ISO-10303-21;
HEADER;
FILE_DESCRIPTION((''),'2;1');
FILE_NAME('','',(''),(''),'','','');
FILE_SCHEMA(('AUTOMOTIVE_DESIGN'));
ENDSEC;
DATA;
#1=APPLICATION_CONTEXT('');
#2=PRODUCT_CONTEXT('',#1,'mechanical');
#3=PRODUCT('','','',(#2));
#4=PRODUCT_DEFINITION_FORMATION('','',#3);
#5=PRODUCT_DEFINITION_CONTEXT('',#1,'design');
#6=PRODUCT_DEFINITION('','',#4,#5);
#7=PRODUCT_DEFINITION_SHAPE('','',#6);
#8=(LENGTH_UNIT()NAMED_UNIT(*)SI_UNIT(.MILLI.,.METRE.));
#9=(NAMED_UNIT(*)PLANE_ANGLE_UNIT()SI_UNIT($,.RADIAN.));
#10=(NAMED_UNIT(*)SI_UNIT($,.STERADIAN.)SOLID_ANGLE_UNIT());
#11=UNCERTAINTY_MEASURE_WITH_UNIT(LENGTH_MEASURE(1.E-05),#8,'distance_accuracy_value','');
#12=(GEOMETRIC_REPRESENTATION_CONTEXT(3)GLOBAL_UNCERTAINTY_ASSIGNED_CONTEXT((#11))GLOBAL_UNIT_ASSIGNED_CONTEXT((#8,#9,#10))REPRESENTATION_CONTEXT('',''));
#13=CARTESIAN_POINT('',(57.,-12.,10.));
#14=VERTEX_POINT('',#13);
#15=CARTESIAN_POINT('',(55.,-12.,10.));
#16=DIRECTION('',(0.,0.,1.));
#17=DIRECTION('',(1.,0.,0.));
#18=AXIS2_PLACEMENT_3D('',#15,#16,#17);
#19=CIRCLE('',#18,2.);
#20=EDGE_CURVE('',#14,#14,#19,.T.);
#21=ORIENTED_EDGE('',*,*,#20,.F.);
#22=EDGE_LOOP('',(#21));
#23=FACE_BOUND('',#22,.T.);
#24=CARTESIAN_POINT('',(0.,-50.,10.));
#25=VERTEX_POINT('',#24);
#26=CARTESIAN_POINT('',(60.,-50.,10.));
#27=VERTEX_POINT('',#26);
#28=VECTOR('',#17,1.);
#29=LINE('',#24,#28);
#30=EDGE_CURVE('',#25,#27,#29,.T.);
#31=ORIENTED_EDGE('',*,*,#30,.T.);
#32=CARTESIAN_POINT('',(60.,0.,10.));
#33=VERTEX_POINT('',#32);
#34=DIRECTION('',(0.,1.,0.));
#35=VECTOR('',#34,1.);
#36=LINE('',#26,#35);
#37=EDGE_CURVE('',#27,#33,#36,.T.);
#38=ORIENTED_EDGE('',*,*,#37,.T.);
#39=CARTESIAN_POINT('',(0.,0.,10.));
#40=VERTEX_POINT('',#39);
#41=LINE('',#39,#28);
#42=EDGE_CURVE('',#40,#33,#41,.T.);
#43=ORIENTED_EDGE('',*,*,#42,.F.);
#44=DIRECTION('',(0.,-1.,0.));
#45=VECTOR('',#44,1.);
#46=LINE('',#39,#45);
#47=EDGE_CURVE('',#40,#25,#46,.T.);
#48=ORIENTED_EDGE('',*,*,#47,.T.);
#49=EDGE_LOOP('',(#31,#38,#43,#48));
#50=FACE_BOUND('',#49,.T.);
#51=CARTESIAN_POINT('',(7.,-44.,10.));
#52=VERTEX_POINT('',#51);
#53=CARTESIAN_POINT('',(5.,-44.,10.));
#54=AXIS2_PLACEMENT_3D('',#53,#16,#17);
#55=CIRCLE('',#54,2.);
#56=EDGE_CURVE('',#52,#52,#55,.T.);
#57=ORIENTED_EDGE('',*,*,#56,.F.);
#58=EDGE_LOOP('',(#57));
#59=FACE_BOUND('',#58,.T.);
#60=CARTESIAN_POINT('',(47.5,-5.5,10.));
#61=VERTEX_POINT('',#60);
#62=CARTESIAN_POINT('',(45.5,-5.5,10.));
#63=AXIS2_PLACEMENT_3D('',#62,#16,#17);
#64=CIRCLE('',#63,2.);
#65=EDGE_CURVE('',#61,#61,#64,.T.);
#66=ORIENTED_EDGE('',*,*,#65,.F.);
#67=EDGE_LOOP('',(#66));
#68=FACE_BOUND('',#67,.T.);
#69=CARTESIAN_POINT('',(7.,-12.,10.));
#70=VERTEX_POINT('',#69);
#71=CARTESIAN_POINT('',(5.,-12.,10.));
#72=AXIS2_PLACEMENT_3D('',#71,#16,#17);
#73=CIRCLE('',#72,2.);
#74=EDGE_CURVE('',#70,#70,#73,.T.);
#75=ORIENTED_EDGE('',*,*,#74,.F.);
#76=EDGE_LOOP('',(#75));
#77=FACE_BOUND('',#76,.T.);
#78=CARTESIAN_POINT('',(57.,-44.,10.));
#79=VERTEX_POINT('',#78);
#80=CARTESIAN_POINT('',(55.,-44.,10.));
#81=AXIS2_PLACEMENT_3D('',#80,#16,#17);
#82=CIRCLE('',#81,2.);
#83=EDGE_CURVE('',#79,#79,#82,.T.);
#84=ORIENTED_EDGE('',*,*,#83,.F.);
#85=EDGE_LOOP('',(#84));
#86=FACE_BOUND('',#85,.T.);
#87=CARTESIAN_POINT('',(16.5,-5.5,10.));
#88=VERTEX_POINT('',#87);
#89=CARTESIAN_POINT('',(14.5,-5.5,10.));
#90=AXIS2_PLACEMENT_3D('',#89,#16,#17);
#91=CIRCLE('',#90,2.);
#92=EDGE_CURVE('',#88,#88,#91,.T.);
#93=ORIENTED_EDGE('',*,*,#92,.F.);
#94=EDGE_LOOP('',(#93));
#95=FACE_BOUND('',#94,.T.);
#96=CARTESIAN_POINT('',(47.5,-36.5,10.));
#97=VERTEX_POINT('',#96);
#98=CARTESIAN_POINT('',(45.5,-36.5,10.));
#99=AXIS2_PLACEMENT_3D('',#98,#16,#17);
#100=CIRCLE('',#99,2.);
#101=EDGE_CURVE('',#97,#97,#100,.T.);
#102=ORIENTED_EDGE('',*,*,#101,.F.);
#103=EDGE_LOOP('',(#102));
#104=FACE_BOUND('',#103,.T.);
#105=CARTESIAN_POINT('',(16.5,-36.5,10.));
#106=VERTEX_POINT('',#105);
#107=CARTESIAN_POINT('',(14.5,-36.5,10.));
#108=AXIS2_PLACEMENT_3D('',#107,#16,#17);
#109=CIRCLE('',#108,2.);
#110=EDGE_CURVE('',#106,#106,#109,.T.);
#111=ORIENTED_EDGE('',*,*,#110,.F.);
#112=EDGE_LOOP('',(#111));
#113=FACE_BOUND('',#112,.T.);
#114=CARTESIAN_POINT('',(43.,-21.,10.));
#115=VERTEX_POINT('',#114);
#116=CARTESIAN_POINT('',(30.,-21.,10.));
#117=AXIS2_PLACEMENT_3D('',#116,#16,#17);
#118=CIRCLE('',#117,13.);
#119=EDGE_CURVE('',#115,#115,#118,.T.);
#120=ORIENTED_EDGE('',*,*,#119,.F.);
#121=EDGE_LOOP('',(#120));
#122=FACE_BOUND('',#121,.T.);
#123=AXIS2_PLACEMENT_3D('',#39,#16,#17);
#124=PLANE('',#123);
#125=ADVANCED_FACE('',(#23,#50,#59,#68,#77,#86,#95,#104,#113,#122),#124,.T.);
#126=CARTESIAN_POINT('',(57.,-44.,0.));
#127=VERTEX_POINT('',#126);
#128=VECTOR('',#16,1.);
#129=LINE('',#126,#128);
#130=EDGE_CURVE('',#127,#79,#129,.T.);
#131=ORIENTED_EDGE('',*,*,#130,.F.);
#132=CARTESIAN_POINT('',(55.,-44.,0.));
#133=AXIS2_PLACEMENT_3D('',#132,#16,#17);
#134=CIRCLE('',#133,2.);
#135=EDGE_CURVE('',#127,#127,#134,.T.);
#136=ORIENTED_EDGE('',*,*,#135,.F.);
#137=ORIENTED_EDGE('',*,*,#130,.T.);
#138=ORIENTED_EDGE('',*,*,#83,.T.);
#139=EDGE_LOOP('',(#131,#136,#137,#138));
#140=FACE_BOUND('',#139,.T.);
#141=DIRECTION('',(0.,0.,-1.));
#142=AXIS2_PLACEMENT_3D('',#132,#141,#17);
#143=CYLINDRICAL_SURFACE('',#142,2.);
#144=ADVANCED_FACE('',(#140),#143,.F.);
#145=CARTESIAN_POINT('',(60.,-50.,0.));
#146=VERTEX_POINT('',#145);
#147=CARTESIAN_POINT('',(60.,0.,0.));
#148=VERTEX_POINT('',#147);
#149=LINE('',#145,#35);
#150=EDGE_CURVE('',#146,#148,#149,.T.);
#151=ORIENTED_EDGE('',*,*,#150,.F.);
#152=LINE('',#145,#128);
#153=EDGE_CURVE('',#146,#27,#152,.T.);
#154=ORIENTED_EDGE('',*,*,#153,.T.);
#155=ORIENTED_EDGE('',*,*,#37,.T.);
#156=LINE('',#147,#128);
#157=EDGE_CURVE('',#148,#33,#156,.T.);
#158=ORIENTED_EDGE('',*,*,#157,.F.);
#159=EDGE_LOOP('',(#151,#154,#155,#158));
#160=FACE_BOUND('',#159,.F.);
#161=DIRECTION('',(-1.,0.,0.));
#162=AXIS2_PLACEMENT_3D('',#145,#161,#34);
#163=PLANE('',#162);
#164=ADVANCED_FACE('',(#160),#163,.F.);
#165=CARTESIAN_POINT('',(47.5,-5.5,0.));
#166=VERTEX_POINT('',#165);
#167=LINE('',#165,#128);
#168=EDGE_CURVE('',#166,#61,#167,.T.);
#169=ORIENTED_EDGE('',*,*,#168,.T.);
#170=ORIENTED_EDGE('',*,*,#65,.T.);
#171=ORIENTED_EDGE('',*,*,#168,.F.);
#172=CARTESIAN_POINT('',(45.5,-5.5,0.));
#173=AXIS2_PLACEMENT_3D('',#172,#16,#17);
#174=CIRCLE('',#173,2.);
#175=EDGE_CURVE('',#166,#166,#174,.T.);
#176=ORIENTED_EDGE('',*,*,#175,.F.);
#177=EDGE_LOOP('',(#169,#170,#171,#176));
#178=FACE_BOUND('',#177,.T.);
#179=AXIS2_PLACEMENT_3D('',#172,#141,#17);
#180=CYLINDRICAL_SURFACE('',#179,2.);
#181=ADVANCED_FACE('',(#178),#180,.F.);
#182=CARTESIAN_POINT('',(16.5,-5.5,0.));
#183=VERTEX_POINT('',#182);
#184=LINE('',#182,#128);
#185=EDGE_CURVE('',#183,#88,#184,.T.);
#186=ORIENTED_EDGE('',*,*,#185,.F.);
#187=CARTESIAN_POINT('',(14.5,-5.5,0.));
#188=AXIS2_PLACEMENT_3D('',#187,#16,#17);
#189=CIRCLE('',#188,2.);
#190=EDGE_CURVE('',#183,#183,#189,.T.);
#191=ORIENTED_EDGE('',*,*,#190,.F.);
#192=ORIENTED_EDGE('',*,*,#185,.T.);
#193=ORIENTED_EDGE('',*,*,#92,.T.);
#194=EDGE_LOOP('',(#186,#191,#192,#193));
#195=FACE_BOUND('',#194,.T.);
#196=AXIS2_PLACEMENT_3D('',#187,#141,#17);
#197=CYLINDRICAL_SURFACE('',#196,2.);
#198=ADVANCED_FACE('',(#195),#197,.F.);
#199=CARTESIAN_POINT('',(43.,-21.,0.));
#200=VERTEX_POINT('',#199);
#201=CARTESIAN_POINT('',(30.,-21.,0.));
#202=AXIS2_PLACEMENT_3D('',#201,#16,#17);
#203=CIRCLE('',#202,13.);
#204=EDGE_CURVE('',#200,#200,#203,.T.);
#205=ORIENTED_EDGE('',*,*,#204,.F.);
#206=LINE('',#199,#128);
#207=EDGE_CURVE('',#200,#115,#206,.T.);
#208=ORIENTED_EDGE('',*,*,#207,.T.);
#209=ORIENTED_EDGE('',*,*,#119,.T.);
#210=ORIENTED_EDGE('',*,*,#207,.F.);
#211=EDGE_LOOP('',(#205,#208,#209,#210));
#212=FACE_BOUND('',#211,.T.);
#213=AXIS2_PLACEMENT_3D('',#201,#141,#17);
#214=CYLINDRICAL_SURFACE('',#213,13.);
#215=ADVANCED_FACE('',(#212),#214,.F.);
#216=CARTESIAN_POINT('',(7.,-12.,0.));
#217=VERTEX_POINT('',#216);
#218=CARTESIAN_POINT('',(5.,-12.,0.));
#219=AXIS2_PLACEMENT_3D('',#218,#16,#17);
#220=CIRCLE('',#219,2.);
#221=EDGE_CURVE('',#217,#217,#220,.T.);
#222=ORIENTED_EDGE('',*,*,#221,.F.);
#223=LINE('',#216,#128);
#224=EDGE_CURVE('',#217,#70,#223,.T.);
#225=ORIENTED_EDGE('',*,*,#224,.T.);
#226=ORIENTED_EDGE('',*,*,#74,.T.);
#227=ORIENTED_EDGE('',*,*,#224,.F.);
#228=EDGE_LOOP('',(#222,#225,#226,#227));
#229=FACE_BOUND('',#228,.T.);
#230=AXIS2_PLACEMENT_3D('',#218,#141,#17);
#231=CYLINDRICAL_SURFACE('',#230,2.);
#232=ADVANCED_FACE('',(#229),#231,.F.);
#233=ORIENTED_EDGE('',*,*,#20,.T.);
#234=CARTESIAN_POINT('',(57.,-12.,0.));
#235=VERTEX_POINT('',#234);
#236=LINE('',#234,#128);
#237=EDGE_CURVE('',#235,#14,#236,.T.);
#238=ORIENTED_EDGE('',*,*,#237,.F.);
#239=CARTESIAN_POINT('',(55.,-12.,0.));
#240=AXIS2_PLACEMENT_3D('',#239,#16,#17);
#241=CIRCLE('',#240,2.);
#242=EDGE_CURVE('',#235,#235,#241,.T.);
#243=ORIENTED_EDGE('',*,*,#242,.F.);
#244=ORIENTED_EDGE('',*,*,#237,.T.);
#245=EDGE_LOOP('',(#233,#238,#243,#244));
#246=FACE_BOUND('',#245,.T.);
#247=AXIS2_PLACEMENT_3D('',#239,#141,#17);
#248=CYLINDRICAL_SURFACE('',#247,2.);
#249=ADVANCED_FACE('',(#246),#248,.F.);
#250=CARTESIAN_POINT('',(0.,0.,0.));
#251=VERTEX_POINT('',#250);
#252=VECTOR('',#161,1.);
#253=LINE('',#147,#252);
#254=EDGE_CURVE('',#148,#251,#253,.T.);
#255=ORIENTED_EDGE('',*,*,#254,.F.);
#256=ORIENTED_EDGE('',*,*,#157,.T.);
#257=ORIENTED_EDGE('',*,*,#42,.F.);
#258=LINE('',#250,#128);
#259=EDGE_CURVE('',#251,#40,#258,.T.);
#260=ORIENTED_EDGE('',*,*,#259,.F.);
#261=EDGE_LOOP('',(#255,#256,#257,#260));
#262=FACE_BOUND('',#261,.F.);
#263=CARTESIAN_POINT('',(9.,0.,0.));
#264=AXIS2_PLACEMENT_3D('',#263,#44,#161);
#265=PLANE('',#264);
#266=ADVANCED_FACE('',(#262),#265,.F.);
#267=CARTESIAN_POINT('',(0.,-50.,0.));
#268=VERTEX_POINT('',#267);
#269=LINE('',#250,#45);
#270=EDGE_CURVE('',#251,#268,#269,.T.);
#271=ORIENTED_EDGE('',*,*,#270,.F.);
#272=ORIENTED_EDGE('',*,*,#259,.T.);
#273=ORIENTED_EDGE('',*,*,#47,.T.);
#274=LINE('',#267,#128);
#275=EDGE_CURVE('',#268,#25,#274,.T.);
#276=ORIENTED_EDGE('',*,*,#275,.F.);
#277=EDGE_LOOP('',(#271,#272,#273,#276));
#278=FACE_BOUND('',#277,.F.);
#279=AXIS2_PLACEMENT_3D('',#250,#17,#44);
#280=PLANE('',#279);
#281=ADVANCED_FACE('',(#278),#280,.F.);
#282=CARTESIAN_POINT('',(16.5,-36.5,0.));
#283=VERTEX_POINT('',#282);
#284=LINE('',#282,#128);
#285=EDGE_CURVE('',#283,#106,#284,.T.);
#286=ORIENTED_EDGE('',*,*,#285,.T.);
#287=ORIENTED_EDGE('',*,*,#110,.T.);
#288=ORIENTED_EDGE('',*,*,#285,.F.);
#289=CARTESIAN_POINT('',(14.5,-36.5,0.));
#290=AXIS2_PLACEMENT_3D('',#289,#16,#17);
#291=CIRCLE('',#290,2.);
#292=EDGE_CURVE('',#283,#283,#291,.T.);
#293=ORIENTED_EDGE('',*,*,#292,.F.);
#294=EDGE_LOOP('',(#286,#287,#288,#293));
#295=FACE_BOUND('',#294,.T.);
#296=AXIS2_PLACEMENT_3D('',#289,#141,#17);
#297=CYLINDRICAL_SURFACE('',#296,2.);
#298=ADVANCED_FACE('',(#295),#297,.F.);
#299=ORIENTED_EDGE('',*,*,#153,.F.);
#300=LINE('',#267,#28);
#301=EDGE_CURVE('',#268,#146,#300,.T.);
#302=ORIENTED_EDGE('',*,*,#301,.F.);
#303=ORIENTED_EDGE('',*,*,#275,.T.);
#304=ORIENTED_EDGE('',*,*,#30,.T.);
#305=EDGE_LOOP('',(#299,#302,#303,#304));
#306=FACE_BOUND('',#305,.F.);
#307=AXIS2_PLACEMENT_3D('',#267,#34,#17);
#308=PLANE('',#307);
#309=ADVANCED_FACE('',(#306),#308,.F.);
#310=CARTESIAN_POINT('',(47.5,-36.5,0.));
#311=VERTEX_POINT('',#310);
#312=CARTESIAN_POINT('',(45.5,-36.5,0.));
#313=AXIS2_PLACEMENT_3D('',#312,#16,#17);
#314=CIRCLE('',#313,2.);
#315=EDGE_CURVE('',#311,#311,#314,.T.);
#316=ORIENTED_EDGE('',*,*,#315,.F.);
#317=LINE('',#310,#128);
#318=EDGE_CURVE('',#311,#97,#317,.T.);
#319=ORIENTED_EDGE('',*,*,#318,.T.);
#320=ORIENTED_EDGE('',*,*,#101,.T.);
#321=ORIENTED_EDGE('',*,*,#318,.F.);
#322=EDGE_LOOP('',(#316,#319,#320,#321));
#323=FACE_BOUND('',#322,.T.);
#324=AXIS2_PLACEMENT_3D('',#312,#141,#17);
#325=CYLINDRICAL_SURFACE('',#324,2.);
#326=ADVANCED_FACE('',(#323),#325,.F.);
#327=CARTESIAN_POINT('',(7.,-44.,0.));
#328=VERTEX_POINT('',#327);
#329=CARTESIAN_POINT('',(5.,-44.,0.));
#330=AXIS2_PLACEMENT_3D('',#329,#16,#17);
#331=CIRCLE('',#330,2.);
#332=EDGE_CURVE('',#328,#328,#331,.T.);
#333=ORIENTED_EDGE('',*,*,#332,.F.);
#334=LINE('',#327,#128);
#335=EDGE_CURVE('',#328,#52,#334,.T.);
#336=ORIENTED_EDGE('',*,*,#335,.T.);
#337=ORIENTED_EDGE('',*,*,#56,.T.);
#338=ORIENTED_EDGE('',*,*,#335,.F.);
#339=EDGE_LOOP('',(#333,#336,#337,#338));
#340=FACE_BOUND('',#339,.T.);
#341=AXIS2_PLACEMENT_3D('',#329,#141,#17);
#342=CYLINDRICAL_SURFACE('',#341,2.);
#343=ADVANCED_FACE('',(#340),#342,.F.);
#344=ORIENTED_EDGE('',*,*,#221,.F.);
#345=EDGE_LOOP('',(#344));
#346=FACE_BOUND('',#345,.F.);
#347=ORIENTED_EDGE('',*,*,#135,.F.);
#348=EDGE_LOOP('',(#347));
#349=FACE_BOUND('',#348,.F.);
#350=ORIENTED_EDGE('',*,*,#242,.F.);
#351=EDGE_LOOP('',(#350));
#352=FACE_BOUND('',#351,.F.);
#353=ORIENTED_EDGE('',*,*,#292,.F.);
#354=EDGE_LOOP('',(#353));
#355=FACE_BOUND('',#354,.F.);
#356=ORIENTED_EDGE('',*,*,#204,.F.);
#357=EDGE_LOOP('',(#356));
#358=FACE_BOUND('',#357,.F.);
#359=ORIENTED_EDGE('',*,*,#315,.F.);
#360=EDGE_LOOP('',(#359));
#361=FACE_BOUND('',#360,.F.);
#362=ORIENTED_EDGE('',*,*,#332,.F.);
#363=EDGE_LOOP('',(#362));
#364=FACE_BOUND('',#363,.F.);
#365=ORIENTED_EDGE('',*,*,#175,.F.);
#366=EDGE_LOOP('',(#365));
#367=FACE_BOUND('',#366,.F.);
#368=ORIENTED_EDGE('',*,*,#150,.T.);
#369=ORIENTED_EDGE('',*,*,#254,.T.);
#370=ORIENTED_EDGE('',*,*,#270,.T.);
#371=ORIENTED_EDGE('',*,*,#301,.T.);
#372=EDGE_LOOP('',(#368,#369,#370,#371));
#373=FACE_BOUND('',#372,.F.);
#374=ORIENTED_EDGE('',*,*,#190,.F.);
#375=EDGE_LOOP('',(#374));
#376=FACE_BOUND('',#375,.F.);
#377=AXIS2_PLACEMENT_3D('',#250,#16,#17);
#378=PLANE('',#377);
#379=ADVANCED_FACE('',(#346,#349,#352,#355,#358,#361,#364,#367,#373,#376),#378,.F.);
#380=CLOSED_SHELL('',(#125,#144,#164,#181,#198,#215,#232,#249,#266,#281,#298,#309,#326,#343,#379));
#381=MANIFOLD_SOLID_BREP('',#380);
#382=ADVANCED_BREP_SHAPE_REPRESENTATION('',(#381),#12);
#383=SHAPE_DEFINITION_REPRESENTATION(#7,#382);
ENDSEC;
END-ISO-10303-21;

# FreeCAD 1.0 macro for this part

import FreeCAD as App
import Part
import Sketcher
from FreeCAD import Vector
Q = App.Units.Quantity

doc = App.newDocument("Part")
body = doc.addObject("PartDesign::Body", "Body")

sketch1 = body.newObject("Sketcher::SketchObject", "Sketch")
sketch1.AttachmentSupport = (doc.getObject("XY_Plane"), [""])
sketch1.MapMode = "FlatFace"
sketch1.addGeometry(Part.LineSegment(Vector(0, 0, 0), Vector(0, -50, 0)), False)
sketch1.addGeometry(Part.LineSegment(Vector(0, -50, 0), Vector(60, -50, 0)), False)
sketch1.addGeometry(Part.LineSegment(Vector(60, -50, 0), Vector(60, 0, 0)), False)
sketch1.addGeometry(Part.LineSegment(Vector(60, 0, 0), Vector(0, 0, 0)), False)
sketch1.addGeometry(Part.Circle(Vector(5, -44, 0), Vector(0, 0, 1), 2), False)
sketch1.addGeometry(Part.Circle(Vector(55, -44, 0), Vector(0, 0, 1), 2), False)
sketch1.addGeometry(Part.Circle(Vector(5, -12, 0), Vector(0, 0, 1), 2), False)
sketch1.addGeometry(Part.Circle(Vector(55, -12, 0), Vector(0, 0, 1), 2), False)
sketch1.addGeometry(Part.Circle(Vector(14.5, -5.5, 0), Vector(0, 0, 1), 2), False)
sketch1.addGeometry(Part.Circle(Vector(30, -21, 0), Vector(0, 0, 1), 13), False)
sketch1.addGeometry(Part.Circle(Vector(45.5, -5.5, 0), Vector(0, 0, 1), 2), False)
sketch1.addGeometry(Part.Circle(Vector(14.5, -36.5, 0), Vector(0, 0, 1), 2), False)
sketch1.addGeometry(Part.Circle(Vector(45.5, -36.5, 0), Vector(0, 0, 1), 2), False)
sketch1.addConstraint(Sketcher.Constraint("Coincident", 0, 2, 1, 1))
sketch1.addConstraint(Sketcher.Constraint("Coincident", 1, 2, 2, 1))
sketch1.addConstraint(Sketcher.Constraint("Coincident", 2, 2, 3, 1))
sketch1.addConstraint(Sketcher.Constraint("Coincident", 3, 2, 0, 1))
sketch1.addConstraint(Sketcher.Constraint("Vertical", 0))
sketch1.addConstraint(Sketcher.Constraint("Horizontal", 1))
sketch1.addConstraint(Sketcher.Constraint("Vertical", 2))
sketch1.addConstraint(Sketcher.Constraint("Horizontal", 3))
sketch1.addConstraint(Sketcher.Constraint("Coincident", 3, 2, -1, 1))
sketch1.addConstraint(Sketcher.Constraint("Equal", 4, 5))
sketch1.addConstraint(Sketcher.Constraint("Equal", 5, 6))
sketch1.addConstraint(Sketcher.Constraint("Equal", 6, 7))
sketch1.addConstraint(Sketcher.Constraint("Equal", 7, 8))
sketch1.addConstraint(Sketcher.Constraint("Equal", 8, 10))
sketch1.addConstraint(Sketcher.Constraint("Equal", 10, 11))
sketch1.addConstraint(Sketcher.Constraint("Equal", 11, 12))
sketch1.addConstraint(Sketcher.Constraint("Horizontal", 4, 3, 5, 3))
sketch1.addConstraint(Sketcher.Constraint("Horizontal", 6, 3, 7, 3))
sketch1.addConstraint(Sketcher.Constraint("Horizontal", 8, 3, 10, 3))
sketch1.addConstraint(Sketcher.Constraint("Horizontal", 11, 3, 12, 3))
sketch1.addConstraint(Sketcher.Constraint("Vertical", 4, 3, 6, 3))
sketch1.addConstraint(Sketcher.Constraint("Vertical", 5, 3, 7, 3))
sketch1.addConstraint(Sketcher.Constraint("Vertical", 8, 3, 11, 3))
sketch1.addConstraint(Sketcher.Constraint("Vertical", 10, 3, 12, 3))
sketch1.addConstraint(Sketcher.Constraint("Diameter", 4, Q("4 mm")))
sketch1.addConstraint(Sketcher.Constraint("Diameter", 9, Q("26 mm")))
sketch1.addConstraint(Sketcher.Constraint("DistanceX", 1, 1, 1, 2, Q("60 mm")))
sketch1.addConstraint(Sketcher.Constraint("DistanceY", 0, 2, 0, 1, Q("50 mm")))
sketch1.addConstraint(Sketcher.Constraint("DistanceX", -1, 1, 4, 3, Q("5 mm")))
sketch1.addConstraint(Sketcher.Constraint("DistanceX", -1, 1, 9, 3, Q("30 mm")))
sketch1.addConstraint(Sketcher.Constraint("DistanceY", 9, 3, -1, 1, Q("21 mm")))
sketch1.addConstraint(Sketcher.Constraint("DistanceX", 4, 3, 5, 3, Q("50 mm")))
sketch1.addConstraint(Sketcher.Constraint("DistanceX", 8, 3, 10, 3, Q("31 mm")))
sketch1.addConstraint(Sketcher.Constraint("DistanceY", 11, 3, 8, 3, Q("31 mm")))
sketch1.addConstraint(Sketcher.Constraint("DistanceY", 0, 2, 4, 3, Q("6 mm")))
sketch1.addConstraint(Sketcher.Constraint("DistanceY", 0, 2, 6, 3, Q("38 mm")))
sketch1.addConstraint(Sketcher.Constraint("DistanceY", 8, 3, -1, 1, Q("5.5 mm")))
sketch1.addConstraint(Sketcher.Constraint("DistanceX", -1, 1, 8, 3, Q("14.5 mm")))
pad1 = body.newObject("PartDesign::Pad", "Pad")
pad1.Profile = sketch1
pad1.Length = 10

doc.recompute()
